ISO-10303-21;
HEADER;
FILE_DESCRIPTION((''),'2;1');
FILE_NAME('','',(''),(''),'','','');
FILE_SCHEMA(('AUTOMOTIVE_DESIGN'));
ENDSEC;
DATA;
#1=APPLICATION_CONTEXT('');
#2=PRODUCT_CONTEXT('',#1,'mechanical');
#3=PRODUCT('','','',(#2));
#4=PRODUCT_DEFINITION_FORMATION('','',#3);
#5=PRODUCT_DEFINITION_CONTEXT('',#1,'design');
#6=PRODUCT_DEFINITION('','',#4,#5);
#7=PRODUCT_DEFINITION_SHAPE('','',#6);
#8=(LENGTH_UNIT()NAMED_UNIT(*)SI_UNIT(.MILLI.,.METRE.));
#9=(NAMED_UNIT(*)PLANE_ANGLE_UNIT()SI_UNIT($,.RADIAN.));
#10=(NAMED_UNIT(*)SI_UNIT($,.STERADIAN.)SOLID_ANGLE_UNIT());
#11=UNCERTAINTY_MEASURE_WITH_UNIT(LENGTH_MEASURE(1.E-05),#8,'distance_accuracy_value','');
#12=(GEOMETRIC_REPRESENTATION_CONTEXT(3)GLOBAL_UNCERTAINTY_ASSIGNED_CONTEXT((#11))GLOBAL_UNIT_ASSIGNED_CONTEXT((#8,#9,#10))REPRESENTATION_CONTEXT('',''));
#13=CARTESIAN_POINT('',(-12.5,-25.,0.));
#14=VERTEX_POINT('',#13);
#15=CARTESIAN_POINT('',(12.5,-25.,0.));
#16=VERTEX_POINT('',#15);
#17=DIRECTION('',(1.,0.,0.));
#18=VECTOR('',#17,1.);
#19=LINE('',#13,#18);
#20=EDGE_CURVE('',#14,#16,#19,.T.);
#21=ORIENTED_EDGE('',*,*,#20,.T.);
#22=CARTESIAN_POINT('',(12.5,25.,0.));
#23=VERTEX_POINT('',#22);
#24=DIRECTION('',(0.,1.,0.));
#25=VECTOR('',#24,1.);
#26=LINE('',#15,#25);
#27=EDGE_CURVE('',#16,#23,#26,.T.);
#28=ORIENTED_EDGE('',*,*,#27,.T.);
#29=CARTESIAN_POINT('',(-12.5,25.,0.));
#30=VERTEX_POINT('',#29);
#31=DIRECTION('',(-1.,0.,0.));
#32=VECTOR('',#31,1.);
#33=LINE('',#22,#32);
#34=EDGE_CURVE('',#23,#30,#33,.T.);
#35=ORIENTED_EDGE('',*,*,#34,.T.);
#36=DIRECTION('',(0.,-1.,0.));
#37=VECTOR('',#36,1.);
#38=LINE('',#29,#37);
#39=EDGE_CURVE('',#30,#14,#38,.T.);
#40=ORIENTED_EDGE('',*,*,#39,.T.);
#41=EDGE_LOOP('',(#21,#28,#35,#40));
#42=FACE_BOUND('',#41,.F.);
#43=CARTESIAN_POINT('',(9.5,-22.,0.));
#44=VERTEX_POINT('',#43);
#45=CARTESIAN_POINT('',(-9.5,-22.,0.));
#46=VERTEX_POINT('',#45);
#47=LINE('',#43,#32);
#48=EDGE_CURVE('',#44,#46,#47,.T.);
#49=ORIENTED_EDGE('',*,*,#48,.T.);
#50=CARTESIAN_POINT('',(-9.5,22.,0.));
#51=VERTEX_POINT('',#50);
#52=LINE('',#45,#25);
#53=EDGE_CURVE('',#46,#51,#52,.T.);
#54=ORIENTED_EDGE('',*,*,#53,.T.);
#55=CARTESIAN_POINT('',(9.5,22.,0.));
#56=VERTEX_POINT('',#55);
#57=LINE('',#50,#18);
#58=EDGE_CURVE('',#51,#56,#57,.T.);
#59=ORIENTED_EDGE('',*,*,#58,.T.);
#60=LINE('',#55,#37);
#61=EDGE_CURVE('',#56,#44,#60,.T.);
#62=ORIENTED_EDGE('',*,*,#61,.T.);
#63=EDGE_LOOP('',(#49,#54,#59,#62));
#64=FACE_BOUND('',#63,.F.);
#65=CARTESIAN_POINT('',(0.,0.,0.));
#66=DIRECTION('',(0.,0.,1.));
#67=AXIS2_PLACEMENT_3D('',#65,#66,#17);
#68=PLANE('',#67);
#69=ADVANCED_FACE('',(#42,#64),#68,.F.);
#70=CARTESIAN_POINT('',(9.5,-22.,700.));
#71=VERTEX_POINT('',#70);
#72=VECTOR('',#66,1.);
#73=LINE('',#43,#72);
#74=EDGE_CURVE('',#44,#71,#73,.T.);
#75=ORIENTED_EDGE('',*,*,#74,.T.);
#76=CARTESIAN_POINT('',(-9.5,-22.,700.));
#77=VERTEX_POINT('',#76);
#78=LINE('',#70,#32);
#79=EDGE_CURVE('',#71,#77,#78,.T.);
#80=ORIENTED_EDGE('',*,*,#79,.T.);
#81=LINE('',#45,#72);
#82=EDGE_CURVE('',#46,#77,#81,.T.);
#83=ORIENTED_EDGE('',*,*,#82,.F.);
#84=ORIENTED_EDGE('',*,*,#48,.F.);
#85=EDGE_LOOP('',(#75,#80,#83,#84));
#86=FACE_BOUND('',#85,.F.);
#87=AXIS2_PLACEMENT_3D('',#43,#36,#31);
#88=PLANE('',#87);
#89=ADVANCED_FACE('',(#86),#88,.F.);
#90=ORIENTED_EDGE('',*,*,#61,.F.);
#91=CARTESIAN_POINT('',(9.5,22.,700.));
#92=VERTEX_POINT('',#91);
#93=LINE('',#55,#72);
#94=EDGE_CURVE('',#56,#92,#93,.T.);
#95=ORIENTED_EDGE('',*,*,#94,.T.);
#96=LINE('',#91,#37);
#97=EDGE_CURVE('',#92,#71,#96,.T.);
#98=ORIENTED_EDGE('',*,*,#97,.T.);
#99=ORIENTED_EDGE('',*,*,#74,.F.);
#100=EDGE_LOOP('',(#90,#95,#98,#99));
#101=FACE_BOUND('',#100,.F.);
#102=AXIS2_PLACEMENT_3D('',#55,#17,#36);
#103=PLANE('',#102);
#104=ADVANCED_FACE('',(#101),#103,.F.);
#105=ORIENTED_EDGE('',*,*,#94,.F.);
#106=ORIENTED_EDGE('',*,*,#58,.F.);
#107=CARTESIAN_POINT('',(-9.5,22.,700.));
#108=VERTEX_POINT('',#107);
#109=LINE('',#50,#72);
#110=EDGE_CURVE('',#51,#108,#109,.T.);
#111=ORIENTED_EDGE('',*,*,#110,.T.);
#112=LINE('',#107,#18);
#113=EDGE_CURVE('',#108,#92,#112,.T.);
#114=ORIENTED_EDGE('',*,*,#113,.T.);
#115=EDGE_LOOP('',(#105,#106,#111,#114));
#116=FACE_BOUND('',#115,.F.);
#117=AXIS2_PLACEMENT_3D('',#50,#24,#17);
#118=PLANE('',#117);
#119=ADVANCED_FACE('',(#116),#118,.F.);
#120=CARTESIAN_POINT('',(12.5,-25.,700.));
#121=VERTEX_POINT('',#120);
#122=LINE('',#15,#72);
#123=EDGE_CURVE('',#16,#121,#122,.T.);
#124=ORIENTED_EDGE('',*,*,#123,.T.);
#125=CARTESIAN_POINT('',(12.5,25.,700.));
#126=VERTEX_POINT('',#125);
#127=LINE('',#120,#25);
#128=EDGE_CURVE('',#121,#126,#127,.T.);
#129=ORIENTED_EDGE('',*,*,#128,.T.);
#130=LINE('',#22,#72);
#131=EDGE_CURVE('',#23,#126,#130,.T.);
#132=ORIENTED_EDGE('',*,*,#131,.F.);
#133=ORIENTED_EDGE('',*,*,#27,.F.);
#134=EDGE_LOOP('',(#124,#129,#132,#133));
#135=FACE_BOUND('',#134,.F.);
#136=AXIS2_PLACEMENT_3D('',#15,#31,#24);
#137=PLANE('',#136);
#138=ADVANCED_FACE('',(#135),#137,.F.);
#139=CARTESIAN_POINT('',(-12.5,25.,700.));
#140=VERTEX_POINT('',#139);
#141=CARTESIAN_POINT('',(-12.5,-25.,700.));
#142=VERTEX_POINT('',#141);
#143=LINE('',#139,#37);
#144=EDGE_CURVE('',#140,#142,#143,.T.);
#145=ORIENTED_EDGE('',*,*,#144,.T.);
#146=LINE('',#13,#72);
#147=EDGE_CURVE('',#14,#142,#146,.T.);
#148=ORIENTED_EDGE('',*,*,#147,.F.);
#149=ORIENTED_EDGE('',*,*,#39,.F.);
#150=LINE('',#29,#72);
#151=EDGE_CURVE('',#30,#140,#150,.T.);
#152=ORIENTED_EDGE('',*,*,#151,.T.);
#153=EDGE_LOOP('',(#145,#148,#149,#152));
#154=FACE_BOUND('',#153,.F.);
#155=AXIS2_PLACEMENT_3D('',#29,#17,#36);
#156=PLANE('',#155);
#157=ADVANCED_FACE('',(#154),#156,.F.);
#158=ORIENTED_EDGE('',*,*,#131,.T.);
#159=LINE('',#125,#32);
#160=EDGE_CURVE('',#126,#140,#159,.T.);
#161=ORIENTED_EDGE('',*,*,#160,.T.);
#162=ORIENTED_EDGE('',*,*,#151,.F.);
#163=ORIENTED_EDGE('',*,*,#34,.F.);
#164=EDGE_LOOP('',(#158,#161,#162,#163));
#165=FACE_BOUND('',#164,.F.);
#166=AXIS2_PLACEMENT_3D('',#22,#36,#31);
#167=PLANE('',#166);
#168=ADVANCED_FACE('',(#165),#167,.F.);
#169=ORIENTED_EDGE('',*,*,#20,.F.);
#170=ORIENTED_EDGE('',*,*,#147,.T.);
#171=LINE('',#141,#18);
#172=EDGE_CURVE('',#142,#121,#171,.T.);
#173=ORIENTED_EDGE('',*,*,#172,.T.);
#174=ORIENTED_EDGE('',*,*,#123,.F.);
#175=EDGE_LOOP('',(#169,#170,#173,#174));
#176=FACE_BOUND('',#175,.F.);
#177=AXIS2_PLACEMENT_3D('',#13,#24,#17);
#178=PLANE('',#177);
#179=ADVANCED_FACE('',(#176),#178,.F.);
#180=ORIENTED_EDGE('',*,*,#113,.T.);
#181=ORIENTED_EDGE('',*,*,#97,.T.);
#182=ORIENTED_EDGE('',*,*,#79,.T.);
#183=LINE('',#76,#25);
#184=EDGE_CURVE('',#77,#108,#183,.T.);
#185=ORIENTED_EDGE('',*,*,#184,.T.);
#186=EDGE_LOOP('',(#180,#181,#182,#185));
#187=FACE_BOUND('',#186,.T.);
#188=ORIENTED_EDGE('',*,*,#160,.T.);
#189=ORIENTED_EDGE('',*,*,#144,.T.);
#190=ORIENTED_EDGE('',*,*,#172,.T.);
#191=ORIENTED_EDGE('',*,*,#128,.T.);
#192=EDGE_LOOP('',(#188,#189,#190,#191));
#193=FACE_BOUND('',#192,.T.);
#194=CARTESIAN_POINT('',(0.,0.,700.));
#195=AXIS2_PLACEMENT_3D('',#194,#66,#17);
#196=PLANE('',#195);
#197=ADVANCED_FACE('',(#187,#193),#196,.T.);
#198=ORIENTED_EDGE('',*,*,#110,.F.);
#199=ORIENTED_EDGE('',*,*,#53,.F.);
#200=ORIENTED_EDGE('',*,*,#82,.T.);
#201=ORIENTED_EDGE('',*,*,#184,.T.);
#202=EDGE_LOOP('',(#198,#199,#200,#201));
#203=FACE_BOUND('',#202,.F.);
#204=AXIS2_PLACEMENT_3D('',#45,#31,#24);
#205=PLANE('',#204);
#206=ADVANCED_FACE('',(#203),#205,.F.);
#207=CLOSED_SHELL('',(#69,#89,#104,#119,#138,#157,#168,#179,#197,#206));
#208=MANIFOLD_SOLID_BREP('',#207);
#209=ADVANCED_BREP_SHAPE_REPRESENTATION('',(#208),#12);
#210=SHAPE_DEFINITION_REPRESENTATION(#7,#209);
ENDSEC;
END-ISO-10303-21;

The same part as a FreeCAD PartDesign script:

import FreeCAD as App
import Part
import Sketcher

V = App.Vector

doc = App.newDocument("Part")
body = doc.addObject("PartDesign::Body", "Body")

sketch1 = body.newObject("Sketcher::SketchObject", "Sketch")
sketch1.AttachmentSupport = (doc.getObject("XY_Plane"), [""])
sketch1.MapMode = "FlatFace"
sketch1.addGeometry([
    Part.LineSegment(V(-12.5, 25, 0), V(-12.5, -25, 0)),
    Part.LineSegment(V(-12.5, -25, 0), V(12.5, -25, 0)),
    Part.LineSegment(V(12.5, -25, 0), V(12.5, 25, 0)),
    Part.LineSegment(V(12.5, 25, 0), V(-12.5, 25, 0)),
    Part.LineSegment(V(-9.5, -22, 0), V(-9.5, 22, 0)),
    Part.LineSegment(V(-9.5, 22, 0), V(9.5, 22, 0)),
    Part.LineSegment(V(9.5, 22, 0), V(9.5, -22, 0)),
    Part.LineSegment(V(9.5, -22, 0), V(-9.5, -22, 0)),
], False)
sketch1.addConstraint([
    Sketcher.Constraint("Coincident", 0, 2, 1, 1),
    Sketcher.Constraint("Coincident", 1, 2, 2, 1),
    Sketcher.Constraint("Coincident", 2, 2, 3, 1),
    Sketcher.Constraint("Coincident", 3, 2, 0, 1),
    Sketcher.Constraint("Coincident", 4, 2, 5, 1),
    Sketcher.Constraint("Coincident", 5, 2, 6, 1),
    Sketcher.Constraint("Coincident", 6, 2, 7, 1),
    Sketcher.Constraint("Coincident", 7, 2, 4, 1),
    Sketcher.Constraint("Vertical", 0),
    Sketcher.Constraint("Horizontal", 1),
    Sketcher.Constraint("Vertical", 2),
    Sketcher.Constraint("Horizontal", 3),
    Sketcher.Constraint("Vertical", 4),
    Sketcher.Constraint("Horizontal", 5),
    Sketcher.Constraint("Vertical", 6),
    Sketcher.Constraint("Horizontal", 7),
    Sketcher.Constraint("Symmetric", 0, 2, 2, 2, -1, 1),
    Sketcher.Constraint("Symmetric", 4, 2, 6, 2, -1, 1),
    Sketcher.Constraint("DistanceX", 1, 1, 1, 2, 25.0),
    Sketcher.Constraint("DistanceY", 0, 2, 0, 1, 50.0),
    Sketcher.Constraint("DistanceX", 3, 2, 4, 2, 3.0),
    Sketcher.Constraint("DistanceY", 4, 2, 3, 2, 3.0),
])
pad1 = body.newObject("PartDesign::Pad", "Pad")
pad1.Profile = sketch1
pad1.Length = 700

doc.recompute()
